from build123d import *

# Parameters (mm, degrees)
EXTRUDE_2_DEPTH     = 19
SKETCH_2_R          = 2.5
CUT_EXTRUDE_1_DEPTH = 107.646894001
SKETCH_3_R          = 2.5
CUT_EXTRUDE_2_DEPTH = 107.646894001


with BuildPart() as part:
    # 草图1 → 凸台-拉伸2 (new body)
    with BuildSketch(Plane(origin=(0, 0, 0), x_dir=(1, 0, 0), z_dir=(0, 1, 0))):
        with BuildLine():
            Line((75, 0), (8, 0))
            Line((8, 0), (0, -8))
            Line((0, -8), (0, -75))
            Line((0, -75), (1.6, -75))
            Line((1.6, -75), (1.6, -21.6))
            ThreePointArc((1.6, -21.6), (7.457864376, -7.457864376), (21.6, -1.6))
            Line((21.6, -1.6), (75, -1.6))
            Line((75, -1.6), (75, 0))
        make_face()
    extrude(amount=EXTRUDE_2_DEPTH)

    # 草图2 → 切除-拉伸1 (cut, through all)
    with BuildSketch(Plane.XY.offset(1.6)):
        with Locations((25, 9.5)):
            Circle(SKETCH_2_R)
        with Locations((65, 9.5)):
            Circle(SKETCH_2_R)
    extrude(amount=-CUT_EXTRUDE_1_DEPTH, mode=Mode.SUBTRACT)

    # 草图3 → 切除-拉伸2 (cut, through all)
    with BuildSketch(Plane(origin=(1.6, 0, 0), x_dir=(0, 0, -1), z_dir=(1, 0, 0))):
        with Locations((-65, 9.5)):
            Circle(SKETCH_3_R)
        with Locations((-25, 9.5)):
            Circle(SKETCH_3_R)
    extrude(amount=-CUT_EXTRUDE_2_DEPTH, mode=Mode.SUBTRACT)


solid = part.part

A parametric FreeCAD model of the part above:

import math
import FreeCAD as App
import Part
import Sketcher
from FreeCAD import Vector
Q = App.Units.Quantity

doc = App.newDocument("Part")
params = doc.addObject("Spreadsheet::Sheet", "Params")
for row, (alias, value) in enumerate([
    ("sketch1_radius", "20 mm"),
    ("sketch1_width", "67 mm"),
    ("sketch1_width2", "1.6 mm"),
    ("sketch1_width3", "53.4 mm"),
    ("pad1_length", "19 mm"),
    ("sketch2_diameter", "5 mm"),
    ("sketch3_diameter", "5 mm"),
], start=1):
    params.set(f"A{row}", alias)
    params.set(f"B{row}", "=" + value)
    params.setAlias(f"B{row}", alias)

body = doc.addObject("PartDesign::Body", "Body")

sketch1 = body.newObject("Sketcher::SketchObject", "Sketch")
sketch1.AttachmentSupport = (doc.getObject("XZ_Plane"), [""])
sketch1.MapMode = "FlatFace"
sketch1.addGeometry([
    Part.LineSegment(Vector(75, 0, 0), Vector(8, 0, 0)),
    Part.LineSegment(Vector(8, 0, 0), Vector(0, 8, 0)),
    Part.LineSegment(Vector(0, 8, 0), Vector(0, 75, 0)),
    Part.LineSegment(Vector(0, 75, 0), Vector(1.6, 75, 0)),
    Part.LineSegment(Vector(1.6, 75, 0), Vector(1.6, 21.6, 0)),
    Part.ArcOfCircle(Part.Circle(Vector(21.6, 21.6, 0), Vector(0, 0, 1), 20), math.radians(180), math.radians(270)),
    Part.LineSegment(Vector(21.6, 1.6, 0), Vector(75, 1.6, 0)),
    Part.LineSegment(Vector(75, 1.6, 0), Vector(75, 0, 0)),
], False)
sketch1.addConstraint([
    Sketcher.Constraint("Coincident", 0, 2, 1, 1),
    Sketcher.Constraint("Coincident", 1, 2, 2, 1),
    Sketcher.Constraint("Coincident", 2, 2, 3, 1),
    Sketcher.Constraint("Coincident", 3, 2, 4, 1),
    Sketcher.Constraint("Tangent", 4, 2, 5, 1),
    Sketcher.Constraint("Tangent", 5, 2, 6, 1),
    Sketcher.Constraint("Coincident", 6, 2, 7, 1),
    Sketcher.Constraint("Coincident", 7, 2, 0, 1),
    Sketcher.Constraint("Horizontal", 0),
    Sketcher.Constraint("Vertical", 2),
    Sketcher.Constraint("Horizontal", 3),
    Sketcher.Constraint("Vertical", 4),
    Sketcher.Constraint("Horizontal", 6),
    Sketcher.Constraint("Vertical", 7),
    Sketcher.Constraint("PointOnObject", 0, 2, -1),
    Sketcher.Constraint("PointOnObject", 1, 2, -2),
    Sketcher.Constraint("Equal", 0, 2),
    Sketcher.Constraint("Equal", 6, 4),
    Sketcher.Constraint("Equal", 3, 7),
    Sketcher.Constraint("Radius", 5, Q("20 mm")),
    Sketcher.Constraint("DistanceX", 0, 2, 0, 1, Q("67 mm")),
    Sketcher.Constraint("DistanceX", 3, 1, 3, 2, Q("1.6 mm")),
    Sketcher.Constraint("DistanceX", 6, 1, 6, 2, Q("53.4 mm")),
])
sketch1.setExpression("Constraints[19]", "Params.sketch1_radius")
sketch1.setExpression("Constraints[20]", "Params.sketch1_width")
sketch1.setExpression("Constraints[21]", "Params.sketch1_width2")
sketch1.setExpression("Constraints[22]", "Params.sketch1_width3")
pad1 = body.newObject("PartDesign::Pad", "Pad")
pad1.Profile = sketch1
pad1.setExpression("Length", "Params.pad1_length")
pad1.Reversed = True

sketch2 = body.newObject("Sketcher::SketchObject", "Sketch001")
sketch2.AttachmentSupport = (doc.getObject("XY_Plane"), [""])
sketch2.MapMode = "FlatFace"
sketch2.AttachmentOffset = App.Placement(Vector(0, 0, 1.6), App.Rotation())
sketch2.addGeometry([
    Part.Circle(Vector(25, 9.5, 0), Vector(0, 0, 1), 2.5),
    Part.Circle(Vector(65, 9.5, 0), Vector(0, 0, 1), 2.5),
], False)
sketch2.addConstraint([
    Sketcher.Constraint("Equal", 0, 1),
    Sketcher.Constraint("Horizontal", 0, 3, 1, 3),
    Sketcher.Constraint("Diameter", 0, Q("5 mm")),
    Sketcher.Constraint("DistanceX", -1, 1, 0, 3, Q("25 mm")),
    Sketcher.Constraint("DistanceX", -1, 1, 1, 3, Q("65 mm")),
    Sketcher.Constraint("DistanceY", -1, 1, 0, 3, Q("9.5 mm")),
])
sketch2.setExpression("Constraints[2]", "Params.sketch2_diameter")
pocket1 = body.newObject("PartDesign::Pocket", "Pocket")
pocket1.Profile = sketch2
pocket1.Type = "ThroughAll"

sketch3 = body.newObject("Sketcher::SketchObject", "Sketch002")
sketch3.AttachmentSupport = (doc.getObject("YZ_Plane"), [""])
sketch3.MapMode = "FlatFace"
sketch3.AttachmentOffset = App.Placement(Vector(0, 0, 1.6), App.Rotation())
sketch3.addGeometry([
    Part.Circle(Vector(9.5, 65, 0), Vector(0, 0, 1), 2.5),
    Part.Circle(Vector(9.5, 25, 0), Vector(0, 0, 1), 2.5),
], False)
sketch3.addConstraint([
    Sketcher.Constraint("Equal", 0, 1),
    Sketcher.Constraint("Vertical", 0, 3, 1, 3),
    Sketcher.Constraint("Diameter", 0, Q("5 mm")),
    Sketcher.Constraint("DistanceY", -1, 1, 0, 3, Q("65 mm")),
    Sketcher.Constraint("DistanceY", -1, 1, 1, 3, Q("25 mm")),
    Sketcher.Constraint("DistanceX", -1, 1, 0, 3, Q("9.5 mm")),
])
sketch3.setExpression("Constraints[2]", "Params.sketch3_diameter")
pocket2 = body.newObject("PartDesign::Pocket", "Pocket001")
pocket2.Profile = sketch3
pocket2.Type = "ThroughAll"

doc.recompute()
